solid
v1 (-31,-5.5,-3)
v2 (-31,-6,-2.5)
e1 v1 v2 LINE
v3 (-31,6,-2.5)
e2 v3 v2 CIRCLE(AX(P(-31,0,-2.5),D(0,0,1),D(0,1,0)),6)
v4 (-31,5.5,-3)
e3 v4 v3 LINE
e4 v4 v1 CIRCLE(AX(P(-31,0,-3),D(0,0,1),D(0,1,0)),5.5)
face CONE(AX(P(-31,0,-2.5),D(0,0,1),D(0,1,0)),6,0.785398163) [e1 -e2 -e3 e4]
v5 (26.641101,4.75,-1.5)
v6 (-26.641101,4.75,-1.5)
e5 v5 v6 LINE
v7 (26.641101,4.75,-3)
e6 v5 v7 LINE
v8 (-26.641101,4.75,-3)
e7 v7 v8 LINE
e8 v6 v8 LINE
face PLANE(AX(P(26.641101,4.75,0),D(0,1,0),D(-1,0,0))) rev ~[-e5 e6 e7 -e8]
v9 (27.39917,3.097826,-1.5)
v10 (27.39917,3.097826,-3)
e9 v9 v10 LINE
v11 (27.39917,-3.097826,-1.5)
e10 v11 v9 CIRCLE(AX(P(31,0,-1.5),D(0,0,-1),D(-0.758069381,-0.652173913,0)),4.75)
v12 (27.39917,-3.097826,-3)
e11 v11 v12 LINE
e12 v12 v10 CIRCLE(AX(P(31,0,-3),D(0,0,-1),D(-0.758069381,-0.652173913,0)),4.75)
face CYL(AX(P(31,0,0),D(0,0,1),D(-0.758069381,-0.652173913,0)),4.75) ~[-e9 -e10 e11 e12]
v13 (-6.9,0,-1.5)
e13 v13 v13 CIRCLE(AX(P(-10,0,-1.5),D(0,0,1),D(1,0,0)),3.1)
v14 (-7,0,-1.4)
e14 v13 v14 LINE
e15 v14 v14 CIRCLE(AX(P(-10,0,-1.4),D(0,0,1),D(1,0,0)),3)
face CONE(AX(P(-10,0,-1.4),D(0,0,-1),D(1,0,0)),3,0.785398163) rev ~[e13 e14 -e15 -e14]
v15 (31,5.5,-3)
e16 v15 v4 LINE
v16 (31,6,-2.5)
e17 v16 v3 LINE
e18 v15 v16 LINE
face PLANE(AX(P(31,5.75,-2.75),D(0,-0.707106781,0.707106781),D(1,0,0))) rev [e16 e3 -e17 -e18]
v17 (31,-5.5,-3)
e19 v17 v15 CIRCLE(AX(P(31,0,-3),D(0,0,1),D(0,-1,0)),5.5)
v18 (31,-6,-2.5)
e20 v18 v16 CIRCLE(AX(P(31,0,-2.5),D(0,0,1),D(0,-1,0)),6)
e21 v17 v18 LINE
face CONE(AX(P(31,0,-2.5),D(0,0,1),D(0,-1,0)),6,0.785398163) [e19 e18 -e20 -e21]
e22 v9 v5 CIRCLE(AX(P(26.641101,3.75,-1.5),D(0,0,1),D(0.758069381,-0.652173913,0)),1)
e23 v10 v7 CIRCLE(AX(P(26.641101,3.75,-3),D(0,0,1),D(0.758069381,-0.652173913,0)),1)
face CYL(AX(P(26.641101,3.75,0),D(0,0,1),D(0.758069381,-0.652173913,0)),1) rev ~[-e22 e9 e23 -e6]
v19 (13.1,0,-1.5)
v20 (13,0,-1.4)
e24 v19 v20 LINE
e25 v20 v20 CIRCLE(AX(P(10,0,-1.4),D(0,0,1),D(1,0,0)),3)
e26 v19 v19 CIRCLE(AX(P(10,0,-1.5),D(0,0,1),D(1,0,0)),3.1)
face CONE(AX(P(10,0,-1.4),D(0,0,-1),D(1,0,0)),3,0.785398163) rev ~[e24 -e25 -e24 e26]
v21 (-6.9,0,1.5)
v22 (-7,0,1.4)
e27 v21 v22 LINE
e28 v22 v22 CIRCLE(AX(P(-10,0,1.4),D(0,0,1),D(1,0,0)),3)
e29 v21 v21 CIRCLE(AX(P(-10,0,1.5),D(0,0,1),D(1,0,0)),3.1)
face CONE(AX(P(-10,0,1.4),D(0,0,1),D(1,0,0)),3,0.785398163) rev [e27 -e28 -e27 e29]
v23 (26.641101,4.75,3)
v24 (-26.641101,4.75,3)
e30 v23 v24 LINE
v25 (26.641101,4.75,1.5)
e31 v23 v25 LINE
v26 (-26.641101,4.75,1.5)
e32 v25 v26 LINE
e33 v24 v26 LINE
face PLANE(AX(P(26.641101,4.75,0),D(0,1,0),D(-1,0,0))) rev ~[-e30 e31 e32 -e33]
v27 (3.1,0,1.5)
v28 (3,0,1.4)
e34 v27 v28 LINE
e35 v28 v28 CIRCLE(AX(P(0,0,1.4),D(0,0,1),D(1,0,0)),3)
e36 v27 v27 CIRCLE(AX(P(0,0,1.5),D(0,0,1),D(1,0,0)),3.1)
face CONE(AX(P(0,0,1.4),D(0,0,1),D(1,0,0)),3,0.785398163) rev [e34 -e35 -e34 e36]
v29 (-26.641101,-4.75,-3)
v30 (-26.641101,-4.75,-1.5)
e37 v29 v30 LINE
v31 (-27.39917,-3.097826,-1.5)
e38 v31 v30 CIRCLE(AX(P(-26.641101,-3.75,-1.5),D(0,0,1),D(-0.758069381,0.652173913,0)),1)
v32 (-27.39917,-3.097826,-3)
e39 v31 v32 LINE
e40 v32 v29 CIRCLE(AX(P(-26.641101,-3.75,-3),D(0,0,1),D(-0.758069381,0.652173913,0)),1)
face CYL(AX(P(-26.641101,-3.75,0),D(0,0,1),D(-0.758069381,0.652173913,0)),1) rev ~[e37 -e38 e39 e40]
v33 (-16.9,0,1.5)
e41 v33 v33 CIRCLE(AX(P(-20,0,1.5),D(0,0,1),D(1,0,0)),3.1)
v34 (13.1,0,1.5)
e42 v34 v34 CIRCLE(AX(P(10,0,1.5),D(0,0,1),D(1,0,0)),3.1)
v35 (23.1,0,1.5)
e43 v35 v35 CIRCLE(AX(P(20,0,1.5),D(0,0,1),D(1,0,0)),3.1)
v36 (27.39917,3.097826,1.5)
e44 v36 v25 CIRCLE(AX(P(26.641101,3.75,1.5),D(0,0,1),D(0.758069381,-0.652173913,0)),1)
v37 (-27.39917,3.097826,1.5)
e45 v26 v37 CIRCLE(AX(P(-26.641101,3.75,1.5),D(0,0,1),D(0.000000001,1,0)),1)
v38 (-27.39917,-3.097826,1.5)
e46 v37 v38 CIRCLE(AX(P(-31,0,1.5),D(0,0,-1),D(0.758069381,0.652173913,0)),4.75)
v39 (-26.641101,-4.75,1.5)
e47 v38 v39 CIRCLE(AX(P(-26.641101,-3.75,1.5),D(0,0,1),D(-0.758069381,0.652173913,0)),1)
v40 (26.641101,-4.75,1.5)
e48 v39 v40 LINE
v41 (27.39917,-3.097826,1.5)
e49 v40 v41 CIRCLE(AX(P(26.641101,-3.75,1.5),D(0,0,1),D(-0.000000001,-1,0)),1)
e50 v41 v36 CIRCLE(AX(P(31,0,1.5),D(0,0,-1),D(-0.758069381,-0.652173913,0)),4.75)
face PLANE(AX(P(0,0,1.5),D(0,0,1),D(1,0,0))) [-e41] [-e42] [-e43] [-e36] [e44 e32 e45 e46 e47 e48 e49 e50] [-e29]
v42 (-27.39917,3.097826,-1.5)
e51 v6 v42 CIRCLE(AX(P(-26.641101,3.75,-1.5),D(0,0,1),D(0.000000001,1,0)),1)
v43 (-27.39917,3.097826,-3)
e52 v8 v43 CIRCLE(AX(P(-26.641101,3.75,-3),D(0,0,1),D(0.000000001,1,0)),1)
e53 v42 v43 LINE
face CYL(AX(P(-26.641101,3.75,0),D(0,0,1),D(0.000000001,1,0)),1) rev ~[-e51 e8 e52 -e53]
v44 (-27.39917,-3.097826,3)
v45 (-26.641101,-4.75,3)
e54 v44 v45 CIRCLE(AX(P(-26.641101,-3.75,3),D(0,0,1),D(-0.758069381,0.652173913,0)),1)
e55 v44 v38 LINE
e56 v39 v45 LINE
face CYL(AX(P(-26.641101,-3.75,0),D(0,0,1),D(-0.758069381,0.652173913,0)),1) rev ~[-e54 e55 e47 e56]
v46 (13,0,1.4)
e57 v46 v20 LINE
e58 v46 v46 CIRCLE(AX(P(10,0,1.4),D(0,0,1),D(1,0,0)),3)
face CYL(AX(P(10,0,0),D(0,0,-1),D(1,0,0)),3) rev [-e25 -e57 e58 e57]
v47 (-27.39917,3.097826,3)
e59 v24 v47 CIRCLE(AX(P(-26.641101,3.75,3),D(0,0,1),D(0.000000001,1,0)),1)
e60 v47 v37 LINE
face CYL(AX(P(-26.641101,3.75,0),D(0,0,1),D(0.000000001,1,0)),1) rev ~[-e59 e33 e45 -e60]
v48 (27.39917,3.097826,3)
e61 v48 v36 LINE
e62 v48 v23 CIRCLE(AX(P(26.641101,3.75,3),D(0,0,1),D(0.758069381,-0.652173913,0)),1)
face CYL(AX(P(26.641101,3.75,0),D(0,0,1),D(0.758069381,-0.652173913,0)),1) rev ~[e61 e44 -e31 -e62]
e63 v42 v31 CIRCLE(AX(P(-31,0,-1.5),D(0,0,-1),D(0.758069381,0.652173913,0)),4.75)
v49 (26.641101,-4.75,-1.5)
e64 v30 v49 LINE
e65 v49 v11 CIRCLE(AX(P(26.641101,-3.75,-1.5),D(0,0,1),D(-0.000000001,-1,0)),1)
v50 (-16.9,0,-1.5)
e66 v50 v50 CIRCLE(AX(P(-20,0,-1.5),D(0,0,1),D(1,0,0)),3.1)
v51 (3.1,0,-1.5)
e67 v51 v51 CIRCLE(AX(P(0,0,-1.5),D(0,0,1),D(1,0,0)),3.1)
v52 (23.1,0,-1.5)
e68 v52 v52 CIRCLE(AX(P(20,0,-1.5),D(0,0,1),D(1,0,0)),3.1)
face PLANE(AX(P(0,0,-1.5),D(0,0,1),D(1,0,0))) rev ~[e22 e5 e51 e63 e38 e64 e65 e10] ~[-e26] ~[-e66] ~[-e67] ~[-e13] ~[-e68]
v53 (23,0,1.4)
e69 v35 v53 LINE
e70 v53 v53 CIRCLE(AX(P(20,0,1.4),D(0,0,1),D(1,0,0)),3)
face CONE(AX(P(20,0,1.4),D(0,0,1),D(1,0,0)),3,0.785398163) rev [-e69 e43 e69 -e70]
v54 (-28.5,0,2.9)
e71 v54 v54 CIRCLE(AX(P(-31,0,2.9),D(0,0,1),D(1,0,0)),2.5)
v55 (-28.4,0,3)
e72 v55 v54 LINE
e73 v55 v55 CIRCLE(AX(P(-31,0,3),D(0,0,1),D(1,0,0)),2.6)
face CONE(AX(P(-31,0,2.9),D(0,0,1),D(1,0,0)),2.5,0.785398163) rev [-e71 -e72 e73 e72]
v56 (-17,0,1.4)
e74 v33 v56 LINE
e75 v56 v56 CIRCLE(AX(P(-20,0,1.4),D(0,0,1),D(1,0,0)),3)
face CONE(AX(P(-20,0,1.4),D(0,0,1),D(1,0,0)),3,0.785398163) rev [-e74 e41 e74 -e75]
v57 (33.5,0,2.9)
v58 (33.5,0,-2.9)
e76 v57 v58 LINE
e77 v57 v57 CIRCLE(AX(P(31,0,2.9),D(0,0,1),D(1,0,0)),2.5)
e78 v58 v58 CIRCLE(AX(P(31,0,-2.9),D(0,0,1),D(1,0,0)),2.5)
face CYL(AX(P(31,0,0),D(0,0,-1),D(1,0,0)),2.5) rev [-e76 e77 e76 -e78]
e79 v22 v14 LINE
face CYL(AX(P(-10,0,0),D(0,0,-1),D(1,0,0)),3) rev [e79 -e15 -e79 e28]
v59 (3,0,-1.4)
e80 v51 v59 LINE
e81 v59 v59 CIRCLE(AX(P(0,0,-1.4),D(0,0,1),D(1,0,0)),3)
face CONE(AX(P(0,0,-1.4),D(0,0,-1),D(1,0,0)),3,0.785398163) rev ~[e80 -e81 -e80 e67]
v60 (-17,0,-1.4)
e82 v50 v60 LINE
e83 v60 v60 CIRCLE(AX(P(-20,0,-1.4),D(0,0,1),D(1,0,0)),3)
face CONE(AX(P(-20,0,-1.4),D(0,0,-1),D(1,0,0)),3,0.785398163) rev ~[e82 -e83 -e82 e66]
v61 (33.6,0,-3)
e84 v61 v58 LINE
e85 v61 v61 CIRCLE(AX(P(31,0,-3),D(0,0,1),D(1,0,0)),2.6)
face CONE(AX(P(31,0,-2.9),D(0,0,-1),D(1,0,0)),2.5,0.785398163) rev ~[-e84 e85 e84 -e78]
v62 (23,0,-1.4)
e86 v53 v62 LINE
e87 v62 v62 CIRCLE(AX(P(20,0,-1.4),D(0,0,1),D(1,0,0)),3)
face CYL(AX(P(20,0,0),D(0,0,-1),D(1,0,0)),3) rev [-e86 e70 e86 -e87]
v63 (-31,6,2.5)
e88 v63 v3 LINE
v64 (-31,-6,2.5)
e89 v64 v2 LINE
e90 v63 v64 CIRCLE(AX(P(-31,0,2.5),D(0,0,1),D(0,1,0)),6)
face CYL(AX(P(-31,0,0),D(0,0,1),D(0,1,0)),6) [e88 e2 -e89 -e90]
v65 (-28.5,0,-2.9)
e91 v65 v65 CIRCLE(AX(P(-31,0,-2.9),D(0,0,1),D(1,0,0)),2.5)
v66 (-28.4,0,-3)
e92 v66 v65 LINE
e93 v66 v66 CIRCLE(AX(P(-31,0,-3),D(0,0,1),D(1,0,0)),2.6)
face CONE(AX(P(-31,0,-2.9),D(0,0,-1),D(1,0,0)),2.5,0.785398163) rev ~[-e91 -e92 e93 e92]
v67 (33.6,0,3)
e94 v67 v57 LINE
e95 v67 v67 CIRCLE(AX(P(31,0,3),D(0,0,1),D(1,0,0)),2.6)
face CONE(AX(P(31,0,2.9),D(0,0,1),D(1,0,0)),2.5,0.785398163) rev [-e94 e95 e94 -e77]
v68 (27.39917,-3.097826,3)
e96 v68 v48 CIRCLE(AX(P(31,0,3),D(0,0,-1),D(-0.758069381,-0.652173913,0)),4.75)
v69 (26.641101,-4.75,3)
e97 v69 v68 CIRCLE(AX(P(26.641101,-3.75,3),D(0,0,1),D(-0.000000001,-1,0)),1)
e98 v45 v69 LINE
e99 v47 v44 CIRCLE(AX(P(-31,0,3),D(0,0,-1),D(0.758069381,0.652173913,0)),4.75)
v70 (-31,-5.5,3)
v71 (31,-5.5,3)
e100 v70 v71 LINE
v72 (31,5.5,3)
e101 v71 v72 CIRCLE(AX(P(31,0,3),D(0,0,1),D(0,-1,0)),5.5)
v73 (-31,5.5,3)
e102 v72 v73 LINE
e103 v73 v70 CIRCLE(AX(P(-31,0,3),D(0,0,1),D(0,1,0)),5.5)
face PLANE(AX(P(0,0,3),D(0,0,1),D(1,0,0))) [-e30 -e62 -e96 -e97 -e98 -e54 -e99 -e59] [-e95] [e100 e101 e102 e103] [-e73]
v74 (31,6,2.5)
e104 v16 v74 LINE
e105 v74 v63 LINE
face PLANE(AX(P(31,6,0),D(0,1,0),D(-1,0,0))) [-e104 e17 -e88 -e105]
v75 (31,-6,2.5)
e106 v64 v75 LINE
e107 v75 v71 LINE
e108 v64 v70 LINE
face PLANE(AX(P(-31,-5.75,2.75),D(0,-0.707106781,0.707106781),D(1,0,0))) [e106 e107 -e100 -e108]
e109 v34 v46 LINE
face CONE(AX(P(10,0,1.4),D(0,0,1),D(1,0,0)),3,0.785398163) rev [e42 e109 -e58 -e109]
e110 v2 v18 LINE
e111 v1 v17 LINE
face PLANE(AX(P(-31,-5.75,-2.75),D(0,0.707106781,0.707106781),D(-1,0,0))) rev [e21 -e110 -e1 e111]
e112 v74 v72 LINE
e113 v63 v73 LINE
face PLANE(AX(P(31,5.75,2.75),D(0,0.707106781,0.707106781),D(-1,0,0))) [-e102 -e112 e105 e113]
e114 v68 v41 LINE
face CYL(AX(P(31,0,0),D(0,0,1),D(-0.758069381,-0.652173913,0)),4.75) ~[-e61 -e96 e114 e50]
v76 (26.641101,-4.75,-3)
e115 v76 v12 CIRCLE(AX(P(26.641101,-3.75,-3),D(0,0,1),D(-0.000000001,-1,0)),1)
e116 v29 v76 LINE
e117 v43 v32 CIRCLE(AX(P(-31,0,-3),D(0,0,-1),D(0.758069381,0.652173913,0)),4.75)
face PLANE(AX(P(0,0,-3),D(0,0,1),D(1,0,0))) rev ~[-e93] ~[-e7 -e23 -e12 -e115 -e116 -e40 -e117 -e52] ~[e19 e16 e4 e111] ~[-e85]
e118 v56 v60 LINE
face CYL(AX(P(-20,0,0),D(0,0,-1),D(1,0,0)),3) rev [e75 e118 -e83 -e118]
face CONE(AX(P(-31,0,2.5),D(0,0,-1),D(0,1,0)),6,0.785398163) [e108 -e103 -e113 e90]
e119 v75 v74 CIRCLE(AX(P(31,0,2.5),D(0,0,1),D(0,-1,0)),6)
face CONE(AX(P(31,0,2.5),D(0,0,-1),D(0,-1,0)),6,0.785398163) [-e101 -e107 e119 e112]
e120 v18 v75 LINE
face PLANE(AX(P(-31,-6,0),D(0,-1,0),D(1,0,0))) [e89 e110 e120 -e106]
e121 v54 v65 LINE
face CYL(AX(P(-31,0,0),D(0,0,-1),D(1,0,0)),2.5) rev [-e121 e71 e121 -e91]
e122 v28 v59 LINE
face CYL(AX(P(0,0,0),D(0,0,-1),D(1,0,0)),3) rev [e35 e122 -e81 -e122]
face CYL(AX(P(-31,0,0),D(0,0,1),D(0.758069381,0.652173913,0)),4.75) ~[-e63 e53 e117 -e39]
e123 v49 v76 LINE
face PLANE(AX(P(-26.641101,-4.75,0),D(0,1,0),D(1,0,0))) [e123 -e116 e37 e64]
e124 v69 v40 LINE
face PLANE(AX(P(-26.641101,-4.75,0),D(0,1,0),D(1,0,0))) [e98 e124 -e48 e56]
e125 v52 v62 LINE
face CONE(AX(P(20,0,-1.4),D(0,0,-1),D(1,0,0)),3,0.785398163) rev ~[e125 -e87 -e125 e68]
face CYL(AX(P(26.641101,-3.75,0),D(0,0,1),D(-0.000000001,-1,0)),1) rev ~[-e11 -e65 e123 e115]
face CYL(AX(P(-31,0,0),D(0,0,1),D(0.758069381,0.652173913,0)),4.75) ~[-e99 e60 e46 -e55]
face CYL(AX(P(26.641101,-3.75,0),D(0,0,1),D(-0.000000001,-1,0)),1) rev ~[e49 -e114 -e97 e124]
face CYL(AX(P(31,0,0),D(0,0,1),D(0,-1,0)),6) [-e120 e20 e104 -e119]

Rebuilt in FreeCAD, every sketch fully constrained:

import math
import FreeCAD as App
import Part
import Sketcher

V = App.Vector


def edges_at(feature, points):
    """Names of the edges that pass closest to the given points."""
    edges = feature.Shape.Edges
    near = lambda p: min(range(len(edges)), key=lambda i: edges[i].distToShape(Part.Vertex(*p))[0])
    return sorted({f"Edge{near(p) + 1}" for p in points})

doc = App.newDocument("Part")
body = doc.addObject("PartDesign::Body", "Body")

# Sketch on XY plane
sketch1 = body.newObject("Sketcher::SketchObject", "Sketch")
sketch1.AttachmentSupport = (doc.getObject("XY_Plane"), [""])
sketch1.MapMode = "FlatFace"
sketch1.addGeometry(Part.LineSegment(V(-31, -6, 0), V(31, -6, 0)), False)
sketch1.addGeometry(Part.ArcOfCircle(Part.Circle(V(31, 0, 0), V(0, 0, 1), 6), math.radians(-90), math.radians(90)), False)
sketch1.addGeometry(Part.LineSegment(V(31, 6, 0), V(-31, 6, 0)), False)
sketch1.addGeometry(Part.ArcOfCircle(Part.Circle(V(-31, 0, 0), V(0, 0, 1), 6), math.radians(90), math.radians(270)), False)
sketch1.addGeometry(Part.Circle(V(-31, 0, 0), V(0, 0, 1), 2.5), False)
sketch1.addGeometry(Part.ArcOfCircle(Part.Circle(V(26.6, -3.8, 0), V(0, 0, 1), 1), math.radians(-90), math.radians(41)), False)
sketch1.addGeometry(Part.LineSegment(V(26.6, -4.8, 0), V(-26.6, -4.8, 0)), False)
sketch1.addGeometry(Part.ArcOfCircle(Part.Circle(V(-26.6, -3.8, 0), V(0, 0, 1), 1), math.radians(139), math.radians(270)), False)
sketch1.addGeometry(Part.ArcOfCircle(Part.Circle(V(-31, 0, 0), V(0, 0, 1), 4.8), math.radians(-41), math.radians(41)), False)
sketch1.addGeometry(Part.ArcOfCircle(Part.Circle(V(-26.6, 3.8, 0), V(0, 0, 1), 1), math.radians(90), math.radians(221)), False)
sketch1.addGeometry(Part.LineSegment(V(-26.6, 4.8, 0), V(26.6, 4.8, 0)), False)
sketch1.addGeometry(Part.ArcOfCircle(Part.Circle(V(26.6, 3.8, 0), V(0, 0, 1), 1), math.radians(-41), math.radians(90)), False)
sketch1.addGeometry(Part.ArcOfCircle(Part.Circle(V(31, 0, 0), V(0, 0, 1), 4.8), math.radians(139), math.radians(221)), False)
sketch1.addGeometry(Part.Circle(V(31, 0, 0), V(0, 0, 1), 2.5), False)
sketch1.addConstraint(Sketcher.Constraint("Tangent", 0, 2, 1, 1))
sketch1.addConstraint(Sketcher.Constraint("Tangent", 1, 2, 2, 1))
sketch1.addConstraint(Sketcher.Constraint("Tangent", 2, 2, 3, 1))
sketch1.addConstraint(Sketcher.Constraint("Tangent", 3, 2, 0, 1))
sketch1.addConstraint(Sketcher.Constraint("Tangent", 5, 1, 6, 1))
sketch1.addConstraint(Sketcher.Constraint("Tangent", 6, 2, 7, 2))
sketch1.addConstraint(Sketcher.Constraint("Tangent", 7, 1, 8, 1))
sketch1.addConstraint(Sketcher.Constraint("Tangent", 8, 2, 9, 2))
sketch1.addConstraint(Sketcher.Constraint("Tangent", 9, 1, 10, 1))
sketch1.addConstraint(Sketcher.Constraint("Tangent", 10, 2, 11, 2))
sketch1.addConstraint(Sketcher.Constraint("Tangent", 11, 1, 12, 1))
sketch1.addConstraint(Sketcher.Constraint("Tangent", 12, 2, 5, 2))
sketch1.addConstraint(Sketcher.Constraint("Horizontal", 0))
sketch1.addConstraint(Sketcher.Constraint("Horizontal", 2))
sketch1.addConstraint(Sketcher.Constraint("Horizontal", 6))
sketch1.addConstraint(Sketcher.Constraint("Horizontal", 10))
sketch1.addConstraint(Sketcher.Constraint("Coincident", 4, 3, 3, 3))
sketch1.addConstraint(Sketcher.Constraint("Coincident", 8, 3, 3, 3))
sketch1.addConstraint(Sketcher.Constraint("Coincident", 12, 3, 1, 3))
sketch1.addConstraint(Sketcher.Constraint("Coincident", 13, 3, 1, 3))
sketch1.addConstraint(Sketcher.Constraint("Equal", 5, 7))
sketch1.addConstraint(Sketcher.Constraint("Equal", 7, 9))
sketch1.addConstraint(Sketcher.Constraint("Equal", 9, 11))
sketch1.addConstraint(Sketcher.Constraint("Equal", 8, 12))
sketch1.addConstraint(Sketcher.Constraint("Equal", 4, 13))
sketch1.addConstraint(Sketcher.Constraint("Symmetric", 1, 3, 3, 3, -1, 1))
sketch1.addConstraint(Sketcher.Constraint("Vertical", 7, 3, 9, 3))
sketch1.addConstraint(Sketcher.Constraint("Diameter", 4, 5.0))
sketch1.addConstraint(Sketcher.Constraint("Radius", 1, 6.0))
sketch1.addConstraint(Sketcher.Constraint("Radius", 5, 1.0))
sketch1.addConstraint(Sketcher.Constraint("DistanceX", 0, 1, 0, 2, 62.0))
sketch1.addConstraint(Sketcher.Constraint("Radius", 8, 4.75))
sketch1.addConstraint(Sketcher.Constraint("DistanceY", 7, 3, 9, 3, 7.5))
pad1 = body.newObject("PartDesign::Pad", "Pad")
pad1.Profile = sketch1
pad1.Length = 6
pad1.Midplane = True

# Sketch on XY plane
sketch2 = body.newObject("Sketcher::SketchObject", "Sketch001")
sketch2.AttachmentSupport = (doc.getObject("XY_Plane"), [""])
sketch2.MapMode = "FlatFace"
sketch2.addGeometry(Part.LineSegment(V(-26.6, -4.8, 0), V(26.6, -4.8, 0)), False)
sketch2.addGeometry(Part.ArcOfCircle(Part.Circle(V(26.6, -3.8, 0), V(0, 0, 1), 1), math.radians(-90), math.radians(41)), False)
sketch2.addGeometry(Part.ArcOfCircle(Part.Circle(V(31, 0, 0), V(0, 0, 1), 4.8), math.radians(139), math.radians(221)), False)
sketch2.addGeometry(Part.ArcOfCircle(Part.Circle(V(26.6, 3.8, 0), V(0, 0, 1), 1), math.radians(-41), math.radians(90)), False)
sketch2.addGeometry(Part.LineSegment(V(26.6, 4.8, 0), V(-26.6, 4.8, 0)), False)
sketch2.addGeometry(Part.ArcOfCircle(Part.Circle(V(-26.6, 3.8, 0), V(0, 0, 1), 1), math.radians(90), math.radians(221)), False)
sketch2.addGeometry(Part.ArcOfCircle(Part.Circle(V(-31, 0, 0), V(0, 0, 1), 4.8), math.radians(-41), math.radians(41)), False)
sketch2.addGeometry(Part.ArcOfCircle(Part.Circle(V(-26.6, -3.8, 0), V(0, 0, 1), 1), math.radians(139), math.radians(270)), False)
sketch2.addGeometry(Part.Circle(V(-20, 0, 0), V(0, 0, 1), 3), False)
sketch2.addGeometry(Part.Circle(V(-10, 0, 0), V(0, 0, 1), 3), False)
sketch2.addGeometry(Part.Circle(V(0, 0, 0), V(0, 0, 1), 3), False)
sketch2.addGeometry(Part.Circle(V(10, 0, 0), V(0, 0, 1), 3), False)
sketch2.addGeometry(Part.Circle(V(20, 0, 0), V(0, 0, 1), 3), False)
sketch2.addConstraint(Sketcher.Constraint("Tangent", 0, 2, 1, 1))
sketch2.addConstraint(Sketcher.Constraint("Tangent", 1, 2, 2, 2))
sketch2.addConstraint(Sketcher.Constraint("Tangent", 2, 1, 3, 1))
sketch2.addConstraint(Sketcher.Constraint("Tangent", 3, 2, 4, 1))
sketch2.addConstraint(Sketcher.Constraint("Tangent", 4, 2, 5, 1))
sketch2.addConstraint(Sketcher.Constraint("Tangent", 5, 2, 6, 2))
sketch2.addConstraint(Sketcher.Constraint("Tangent", 6, 1, 7, 1))
sketch2.addConstraint(Sketcher.Constraint("Tangent", 7, 2, 0, 1))
sketch2.addConstraint(Sketcher.Constraint("Horizontal", 0))
sketch2.addConstraint(Sketcher.Constraint("Horizontal", 4))
sketch2.addConstraint(Sketcher.Constraint("Coincident", 10, 3, -1, 1))
sketch2.addConstraint(Sketcher.Constraint("Equal", 1, 3))
sketch2.addConstraint(Sketcher.Constraint("Equal", 3, 5))
sketch2.addConstraint(Sketcher.Constraint("Equal", 2, 6))
sketch2.addConstraint(Sketcher.Constraint("Equal", 5, 7))
sketch2.addConstraint(Sketcher.Constraint("Equal", 8, 9))
sketch2.addConstraint(Sketcher.Constraint("Equal", 9, 10))
sketch2.addConstraint(Sketcher.Constraint("Equal", 10, 11))
sketch2.addConstraint(Sketcher.Constraint("Equal", 11, 12))
sketch2.addConstraint(Sketcher.Constraint("Symmetric", 1, 3, 5, 3, -1, 1))
sketch2.addConstraint(Sketcher.Constraint("Symmetric", 9, 3, 11, 3, -1, 1))
sketch2.addConstraint(Sketcher.Constraint("Symmetric", 8, 3, 12, 3, -1, 1))
sketch2.addConstraint(Sketcher.Constraint("Symmetric", 2, 3, 6, 3, -2))
sketch2.addConstraint(Sketcher.Constraint("PointOnObject", 8, 3, -1))
sketch2.addConstraint(Sketcher.Constraint("PointOnObject", 9, 3, -1))
sketch2.addConstraint(Sketcher.Constraint("Diameter", 8, 6.0))
sketch2.addConstraint(Sketcher.Constraint("Radius", 1, 1.0))
sketch2.addConstraint(Sketcher.Constraint("Radius", 2, 4.75))
sketch2.addConstraint(Sketcher.Constraint("DistanceX", -1, 1, 2, 3, 31.0))
sketch2.addConstraint(Sketcher.Constraint("DistanceX", 8, 3, -1, 1, 20.0))
sketch2.addConstraint(Sketcher.Constraint("DistanceX", 9, 3, -1, 1, 10.0))
sketch2.addConstraint(Sketcher.Constraint("DistanceY", 1, 3, 3, 3, 7.5))
pad2 = body.newObject("PartDesign::Pad", "Pad001")
pad2.Profile = sketch2
pad2.Length = 3
pad2.Midplane = True
doc.recompute()

chamfer = body.newObject("PartDesign::Chamfer", "Chamfer")
chamfer.Base = (pad2, edges_at(pad2, [
    (-37, 0, -3),
    (0, 6, -3),
    (37, 0, -3),
    (0, -6, -3),
    (0, -6, 3),
    (37, 0, 3),
    (0, 6, 3),
    (-37, 0, 3),
]))
chamfer.Size = 0.5
doc.recompute()

chamfer2 = body.newObject("PartDesign::Chamfer", "Chamfer001")
chamfer2.Base = (chamfer, edges_at(chamfer, [
    (-33.5, 0, -3),
    (28.5, 0, -3),
    (28.5, 0, 3),
    (-33.5, 0, 3),
    (-23, 0, 1.5),
    (-13, 0, 1.5),
    (17, 0, 1.5),
    (7, 0, 1.5),
    (-3, 0, 1.5),
    (-3, 0, -1.5),
    (7, 0, -1.5),
    (17, 0, -1.5),
    (-13, 0, -1.5),
    (-23, 0, -1.5),
]))
chamfer2.Size = 0.1

doc.recompute()
